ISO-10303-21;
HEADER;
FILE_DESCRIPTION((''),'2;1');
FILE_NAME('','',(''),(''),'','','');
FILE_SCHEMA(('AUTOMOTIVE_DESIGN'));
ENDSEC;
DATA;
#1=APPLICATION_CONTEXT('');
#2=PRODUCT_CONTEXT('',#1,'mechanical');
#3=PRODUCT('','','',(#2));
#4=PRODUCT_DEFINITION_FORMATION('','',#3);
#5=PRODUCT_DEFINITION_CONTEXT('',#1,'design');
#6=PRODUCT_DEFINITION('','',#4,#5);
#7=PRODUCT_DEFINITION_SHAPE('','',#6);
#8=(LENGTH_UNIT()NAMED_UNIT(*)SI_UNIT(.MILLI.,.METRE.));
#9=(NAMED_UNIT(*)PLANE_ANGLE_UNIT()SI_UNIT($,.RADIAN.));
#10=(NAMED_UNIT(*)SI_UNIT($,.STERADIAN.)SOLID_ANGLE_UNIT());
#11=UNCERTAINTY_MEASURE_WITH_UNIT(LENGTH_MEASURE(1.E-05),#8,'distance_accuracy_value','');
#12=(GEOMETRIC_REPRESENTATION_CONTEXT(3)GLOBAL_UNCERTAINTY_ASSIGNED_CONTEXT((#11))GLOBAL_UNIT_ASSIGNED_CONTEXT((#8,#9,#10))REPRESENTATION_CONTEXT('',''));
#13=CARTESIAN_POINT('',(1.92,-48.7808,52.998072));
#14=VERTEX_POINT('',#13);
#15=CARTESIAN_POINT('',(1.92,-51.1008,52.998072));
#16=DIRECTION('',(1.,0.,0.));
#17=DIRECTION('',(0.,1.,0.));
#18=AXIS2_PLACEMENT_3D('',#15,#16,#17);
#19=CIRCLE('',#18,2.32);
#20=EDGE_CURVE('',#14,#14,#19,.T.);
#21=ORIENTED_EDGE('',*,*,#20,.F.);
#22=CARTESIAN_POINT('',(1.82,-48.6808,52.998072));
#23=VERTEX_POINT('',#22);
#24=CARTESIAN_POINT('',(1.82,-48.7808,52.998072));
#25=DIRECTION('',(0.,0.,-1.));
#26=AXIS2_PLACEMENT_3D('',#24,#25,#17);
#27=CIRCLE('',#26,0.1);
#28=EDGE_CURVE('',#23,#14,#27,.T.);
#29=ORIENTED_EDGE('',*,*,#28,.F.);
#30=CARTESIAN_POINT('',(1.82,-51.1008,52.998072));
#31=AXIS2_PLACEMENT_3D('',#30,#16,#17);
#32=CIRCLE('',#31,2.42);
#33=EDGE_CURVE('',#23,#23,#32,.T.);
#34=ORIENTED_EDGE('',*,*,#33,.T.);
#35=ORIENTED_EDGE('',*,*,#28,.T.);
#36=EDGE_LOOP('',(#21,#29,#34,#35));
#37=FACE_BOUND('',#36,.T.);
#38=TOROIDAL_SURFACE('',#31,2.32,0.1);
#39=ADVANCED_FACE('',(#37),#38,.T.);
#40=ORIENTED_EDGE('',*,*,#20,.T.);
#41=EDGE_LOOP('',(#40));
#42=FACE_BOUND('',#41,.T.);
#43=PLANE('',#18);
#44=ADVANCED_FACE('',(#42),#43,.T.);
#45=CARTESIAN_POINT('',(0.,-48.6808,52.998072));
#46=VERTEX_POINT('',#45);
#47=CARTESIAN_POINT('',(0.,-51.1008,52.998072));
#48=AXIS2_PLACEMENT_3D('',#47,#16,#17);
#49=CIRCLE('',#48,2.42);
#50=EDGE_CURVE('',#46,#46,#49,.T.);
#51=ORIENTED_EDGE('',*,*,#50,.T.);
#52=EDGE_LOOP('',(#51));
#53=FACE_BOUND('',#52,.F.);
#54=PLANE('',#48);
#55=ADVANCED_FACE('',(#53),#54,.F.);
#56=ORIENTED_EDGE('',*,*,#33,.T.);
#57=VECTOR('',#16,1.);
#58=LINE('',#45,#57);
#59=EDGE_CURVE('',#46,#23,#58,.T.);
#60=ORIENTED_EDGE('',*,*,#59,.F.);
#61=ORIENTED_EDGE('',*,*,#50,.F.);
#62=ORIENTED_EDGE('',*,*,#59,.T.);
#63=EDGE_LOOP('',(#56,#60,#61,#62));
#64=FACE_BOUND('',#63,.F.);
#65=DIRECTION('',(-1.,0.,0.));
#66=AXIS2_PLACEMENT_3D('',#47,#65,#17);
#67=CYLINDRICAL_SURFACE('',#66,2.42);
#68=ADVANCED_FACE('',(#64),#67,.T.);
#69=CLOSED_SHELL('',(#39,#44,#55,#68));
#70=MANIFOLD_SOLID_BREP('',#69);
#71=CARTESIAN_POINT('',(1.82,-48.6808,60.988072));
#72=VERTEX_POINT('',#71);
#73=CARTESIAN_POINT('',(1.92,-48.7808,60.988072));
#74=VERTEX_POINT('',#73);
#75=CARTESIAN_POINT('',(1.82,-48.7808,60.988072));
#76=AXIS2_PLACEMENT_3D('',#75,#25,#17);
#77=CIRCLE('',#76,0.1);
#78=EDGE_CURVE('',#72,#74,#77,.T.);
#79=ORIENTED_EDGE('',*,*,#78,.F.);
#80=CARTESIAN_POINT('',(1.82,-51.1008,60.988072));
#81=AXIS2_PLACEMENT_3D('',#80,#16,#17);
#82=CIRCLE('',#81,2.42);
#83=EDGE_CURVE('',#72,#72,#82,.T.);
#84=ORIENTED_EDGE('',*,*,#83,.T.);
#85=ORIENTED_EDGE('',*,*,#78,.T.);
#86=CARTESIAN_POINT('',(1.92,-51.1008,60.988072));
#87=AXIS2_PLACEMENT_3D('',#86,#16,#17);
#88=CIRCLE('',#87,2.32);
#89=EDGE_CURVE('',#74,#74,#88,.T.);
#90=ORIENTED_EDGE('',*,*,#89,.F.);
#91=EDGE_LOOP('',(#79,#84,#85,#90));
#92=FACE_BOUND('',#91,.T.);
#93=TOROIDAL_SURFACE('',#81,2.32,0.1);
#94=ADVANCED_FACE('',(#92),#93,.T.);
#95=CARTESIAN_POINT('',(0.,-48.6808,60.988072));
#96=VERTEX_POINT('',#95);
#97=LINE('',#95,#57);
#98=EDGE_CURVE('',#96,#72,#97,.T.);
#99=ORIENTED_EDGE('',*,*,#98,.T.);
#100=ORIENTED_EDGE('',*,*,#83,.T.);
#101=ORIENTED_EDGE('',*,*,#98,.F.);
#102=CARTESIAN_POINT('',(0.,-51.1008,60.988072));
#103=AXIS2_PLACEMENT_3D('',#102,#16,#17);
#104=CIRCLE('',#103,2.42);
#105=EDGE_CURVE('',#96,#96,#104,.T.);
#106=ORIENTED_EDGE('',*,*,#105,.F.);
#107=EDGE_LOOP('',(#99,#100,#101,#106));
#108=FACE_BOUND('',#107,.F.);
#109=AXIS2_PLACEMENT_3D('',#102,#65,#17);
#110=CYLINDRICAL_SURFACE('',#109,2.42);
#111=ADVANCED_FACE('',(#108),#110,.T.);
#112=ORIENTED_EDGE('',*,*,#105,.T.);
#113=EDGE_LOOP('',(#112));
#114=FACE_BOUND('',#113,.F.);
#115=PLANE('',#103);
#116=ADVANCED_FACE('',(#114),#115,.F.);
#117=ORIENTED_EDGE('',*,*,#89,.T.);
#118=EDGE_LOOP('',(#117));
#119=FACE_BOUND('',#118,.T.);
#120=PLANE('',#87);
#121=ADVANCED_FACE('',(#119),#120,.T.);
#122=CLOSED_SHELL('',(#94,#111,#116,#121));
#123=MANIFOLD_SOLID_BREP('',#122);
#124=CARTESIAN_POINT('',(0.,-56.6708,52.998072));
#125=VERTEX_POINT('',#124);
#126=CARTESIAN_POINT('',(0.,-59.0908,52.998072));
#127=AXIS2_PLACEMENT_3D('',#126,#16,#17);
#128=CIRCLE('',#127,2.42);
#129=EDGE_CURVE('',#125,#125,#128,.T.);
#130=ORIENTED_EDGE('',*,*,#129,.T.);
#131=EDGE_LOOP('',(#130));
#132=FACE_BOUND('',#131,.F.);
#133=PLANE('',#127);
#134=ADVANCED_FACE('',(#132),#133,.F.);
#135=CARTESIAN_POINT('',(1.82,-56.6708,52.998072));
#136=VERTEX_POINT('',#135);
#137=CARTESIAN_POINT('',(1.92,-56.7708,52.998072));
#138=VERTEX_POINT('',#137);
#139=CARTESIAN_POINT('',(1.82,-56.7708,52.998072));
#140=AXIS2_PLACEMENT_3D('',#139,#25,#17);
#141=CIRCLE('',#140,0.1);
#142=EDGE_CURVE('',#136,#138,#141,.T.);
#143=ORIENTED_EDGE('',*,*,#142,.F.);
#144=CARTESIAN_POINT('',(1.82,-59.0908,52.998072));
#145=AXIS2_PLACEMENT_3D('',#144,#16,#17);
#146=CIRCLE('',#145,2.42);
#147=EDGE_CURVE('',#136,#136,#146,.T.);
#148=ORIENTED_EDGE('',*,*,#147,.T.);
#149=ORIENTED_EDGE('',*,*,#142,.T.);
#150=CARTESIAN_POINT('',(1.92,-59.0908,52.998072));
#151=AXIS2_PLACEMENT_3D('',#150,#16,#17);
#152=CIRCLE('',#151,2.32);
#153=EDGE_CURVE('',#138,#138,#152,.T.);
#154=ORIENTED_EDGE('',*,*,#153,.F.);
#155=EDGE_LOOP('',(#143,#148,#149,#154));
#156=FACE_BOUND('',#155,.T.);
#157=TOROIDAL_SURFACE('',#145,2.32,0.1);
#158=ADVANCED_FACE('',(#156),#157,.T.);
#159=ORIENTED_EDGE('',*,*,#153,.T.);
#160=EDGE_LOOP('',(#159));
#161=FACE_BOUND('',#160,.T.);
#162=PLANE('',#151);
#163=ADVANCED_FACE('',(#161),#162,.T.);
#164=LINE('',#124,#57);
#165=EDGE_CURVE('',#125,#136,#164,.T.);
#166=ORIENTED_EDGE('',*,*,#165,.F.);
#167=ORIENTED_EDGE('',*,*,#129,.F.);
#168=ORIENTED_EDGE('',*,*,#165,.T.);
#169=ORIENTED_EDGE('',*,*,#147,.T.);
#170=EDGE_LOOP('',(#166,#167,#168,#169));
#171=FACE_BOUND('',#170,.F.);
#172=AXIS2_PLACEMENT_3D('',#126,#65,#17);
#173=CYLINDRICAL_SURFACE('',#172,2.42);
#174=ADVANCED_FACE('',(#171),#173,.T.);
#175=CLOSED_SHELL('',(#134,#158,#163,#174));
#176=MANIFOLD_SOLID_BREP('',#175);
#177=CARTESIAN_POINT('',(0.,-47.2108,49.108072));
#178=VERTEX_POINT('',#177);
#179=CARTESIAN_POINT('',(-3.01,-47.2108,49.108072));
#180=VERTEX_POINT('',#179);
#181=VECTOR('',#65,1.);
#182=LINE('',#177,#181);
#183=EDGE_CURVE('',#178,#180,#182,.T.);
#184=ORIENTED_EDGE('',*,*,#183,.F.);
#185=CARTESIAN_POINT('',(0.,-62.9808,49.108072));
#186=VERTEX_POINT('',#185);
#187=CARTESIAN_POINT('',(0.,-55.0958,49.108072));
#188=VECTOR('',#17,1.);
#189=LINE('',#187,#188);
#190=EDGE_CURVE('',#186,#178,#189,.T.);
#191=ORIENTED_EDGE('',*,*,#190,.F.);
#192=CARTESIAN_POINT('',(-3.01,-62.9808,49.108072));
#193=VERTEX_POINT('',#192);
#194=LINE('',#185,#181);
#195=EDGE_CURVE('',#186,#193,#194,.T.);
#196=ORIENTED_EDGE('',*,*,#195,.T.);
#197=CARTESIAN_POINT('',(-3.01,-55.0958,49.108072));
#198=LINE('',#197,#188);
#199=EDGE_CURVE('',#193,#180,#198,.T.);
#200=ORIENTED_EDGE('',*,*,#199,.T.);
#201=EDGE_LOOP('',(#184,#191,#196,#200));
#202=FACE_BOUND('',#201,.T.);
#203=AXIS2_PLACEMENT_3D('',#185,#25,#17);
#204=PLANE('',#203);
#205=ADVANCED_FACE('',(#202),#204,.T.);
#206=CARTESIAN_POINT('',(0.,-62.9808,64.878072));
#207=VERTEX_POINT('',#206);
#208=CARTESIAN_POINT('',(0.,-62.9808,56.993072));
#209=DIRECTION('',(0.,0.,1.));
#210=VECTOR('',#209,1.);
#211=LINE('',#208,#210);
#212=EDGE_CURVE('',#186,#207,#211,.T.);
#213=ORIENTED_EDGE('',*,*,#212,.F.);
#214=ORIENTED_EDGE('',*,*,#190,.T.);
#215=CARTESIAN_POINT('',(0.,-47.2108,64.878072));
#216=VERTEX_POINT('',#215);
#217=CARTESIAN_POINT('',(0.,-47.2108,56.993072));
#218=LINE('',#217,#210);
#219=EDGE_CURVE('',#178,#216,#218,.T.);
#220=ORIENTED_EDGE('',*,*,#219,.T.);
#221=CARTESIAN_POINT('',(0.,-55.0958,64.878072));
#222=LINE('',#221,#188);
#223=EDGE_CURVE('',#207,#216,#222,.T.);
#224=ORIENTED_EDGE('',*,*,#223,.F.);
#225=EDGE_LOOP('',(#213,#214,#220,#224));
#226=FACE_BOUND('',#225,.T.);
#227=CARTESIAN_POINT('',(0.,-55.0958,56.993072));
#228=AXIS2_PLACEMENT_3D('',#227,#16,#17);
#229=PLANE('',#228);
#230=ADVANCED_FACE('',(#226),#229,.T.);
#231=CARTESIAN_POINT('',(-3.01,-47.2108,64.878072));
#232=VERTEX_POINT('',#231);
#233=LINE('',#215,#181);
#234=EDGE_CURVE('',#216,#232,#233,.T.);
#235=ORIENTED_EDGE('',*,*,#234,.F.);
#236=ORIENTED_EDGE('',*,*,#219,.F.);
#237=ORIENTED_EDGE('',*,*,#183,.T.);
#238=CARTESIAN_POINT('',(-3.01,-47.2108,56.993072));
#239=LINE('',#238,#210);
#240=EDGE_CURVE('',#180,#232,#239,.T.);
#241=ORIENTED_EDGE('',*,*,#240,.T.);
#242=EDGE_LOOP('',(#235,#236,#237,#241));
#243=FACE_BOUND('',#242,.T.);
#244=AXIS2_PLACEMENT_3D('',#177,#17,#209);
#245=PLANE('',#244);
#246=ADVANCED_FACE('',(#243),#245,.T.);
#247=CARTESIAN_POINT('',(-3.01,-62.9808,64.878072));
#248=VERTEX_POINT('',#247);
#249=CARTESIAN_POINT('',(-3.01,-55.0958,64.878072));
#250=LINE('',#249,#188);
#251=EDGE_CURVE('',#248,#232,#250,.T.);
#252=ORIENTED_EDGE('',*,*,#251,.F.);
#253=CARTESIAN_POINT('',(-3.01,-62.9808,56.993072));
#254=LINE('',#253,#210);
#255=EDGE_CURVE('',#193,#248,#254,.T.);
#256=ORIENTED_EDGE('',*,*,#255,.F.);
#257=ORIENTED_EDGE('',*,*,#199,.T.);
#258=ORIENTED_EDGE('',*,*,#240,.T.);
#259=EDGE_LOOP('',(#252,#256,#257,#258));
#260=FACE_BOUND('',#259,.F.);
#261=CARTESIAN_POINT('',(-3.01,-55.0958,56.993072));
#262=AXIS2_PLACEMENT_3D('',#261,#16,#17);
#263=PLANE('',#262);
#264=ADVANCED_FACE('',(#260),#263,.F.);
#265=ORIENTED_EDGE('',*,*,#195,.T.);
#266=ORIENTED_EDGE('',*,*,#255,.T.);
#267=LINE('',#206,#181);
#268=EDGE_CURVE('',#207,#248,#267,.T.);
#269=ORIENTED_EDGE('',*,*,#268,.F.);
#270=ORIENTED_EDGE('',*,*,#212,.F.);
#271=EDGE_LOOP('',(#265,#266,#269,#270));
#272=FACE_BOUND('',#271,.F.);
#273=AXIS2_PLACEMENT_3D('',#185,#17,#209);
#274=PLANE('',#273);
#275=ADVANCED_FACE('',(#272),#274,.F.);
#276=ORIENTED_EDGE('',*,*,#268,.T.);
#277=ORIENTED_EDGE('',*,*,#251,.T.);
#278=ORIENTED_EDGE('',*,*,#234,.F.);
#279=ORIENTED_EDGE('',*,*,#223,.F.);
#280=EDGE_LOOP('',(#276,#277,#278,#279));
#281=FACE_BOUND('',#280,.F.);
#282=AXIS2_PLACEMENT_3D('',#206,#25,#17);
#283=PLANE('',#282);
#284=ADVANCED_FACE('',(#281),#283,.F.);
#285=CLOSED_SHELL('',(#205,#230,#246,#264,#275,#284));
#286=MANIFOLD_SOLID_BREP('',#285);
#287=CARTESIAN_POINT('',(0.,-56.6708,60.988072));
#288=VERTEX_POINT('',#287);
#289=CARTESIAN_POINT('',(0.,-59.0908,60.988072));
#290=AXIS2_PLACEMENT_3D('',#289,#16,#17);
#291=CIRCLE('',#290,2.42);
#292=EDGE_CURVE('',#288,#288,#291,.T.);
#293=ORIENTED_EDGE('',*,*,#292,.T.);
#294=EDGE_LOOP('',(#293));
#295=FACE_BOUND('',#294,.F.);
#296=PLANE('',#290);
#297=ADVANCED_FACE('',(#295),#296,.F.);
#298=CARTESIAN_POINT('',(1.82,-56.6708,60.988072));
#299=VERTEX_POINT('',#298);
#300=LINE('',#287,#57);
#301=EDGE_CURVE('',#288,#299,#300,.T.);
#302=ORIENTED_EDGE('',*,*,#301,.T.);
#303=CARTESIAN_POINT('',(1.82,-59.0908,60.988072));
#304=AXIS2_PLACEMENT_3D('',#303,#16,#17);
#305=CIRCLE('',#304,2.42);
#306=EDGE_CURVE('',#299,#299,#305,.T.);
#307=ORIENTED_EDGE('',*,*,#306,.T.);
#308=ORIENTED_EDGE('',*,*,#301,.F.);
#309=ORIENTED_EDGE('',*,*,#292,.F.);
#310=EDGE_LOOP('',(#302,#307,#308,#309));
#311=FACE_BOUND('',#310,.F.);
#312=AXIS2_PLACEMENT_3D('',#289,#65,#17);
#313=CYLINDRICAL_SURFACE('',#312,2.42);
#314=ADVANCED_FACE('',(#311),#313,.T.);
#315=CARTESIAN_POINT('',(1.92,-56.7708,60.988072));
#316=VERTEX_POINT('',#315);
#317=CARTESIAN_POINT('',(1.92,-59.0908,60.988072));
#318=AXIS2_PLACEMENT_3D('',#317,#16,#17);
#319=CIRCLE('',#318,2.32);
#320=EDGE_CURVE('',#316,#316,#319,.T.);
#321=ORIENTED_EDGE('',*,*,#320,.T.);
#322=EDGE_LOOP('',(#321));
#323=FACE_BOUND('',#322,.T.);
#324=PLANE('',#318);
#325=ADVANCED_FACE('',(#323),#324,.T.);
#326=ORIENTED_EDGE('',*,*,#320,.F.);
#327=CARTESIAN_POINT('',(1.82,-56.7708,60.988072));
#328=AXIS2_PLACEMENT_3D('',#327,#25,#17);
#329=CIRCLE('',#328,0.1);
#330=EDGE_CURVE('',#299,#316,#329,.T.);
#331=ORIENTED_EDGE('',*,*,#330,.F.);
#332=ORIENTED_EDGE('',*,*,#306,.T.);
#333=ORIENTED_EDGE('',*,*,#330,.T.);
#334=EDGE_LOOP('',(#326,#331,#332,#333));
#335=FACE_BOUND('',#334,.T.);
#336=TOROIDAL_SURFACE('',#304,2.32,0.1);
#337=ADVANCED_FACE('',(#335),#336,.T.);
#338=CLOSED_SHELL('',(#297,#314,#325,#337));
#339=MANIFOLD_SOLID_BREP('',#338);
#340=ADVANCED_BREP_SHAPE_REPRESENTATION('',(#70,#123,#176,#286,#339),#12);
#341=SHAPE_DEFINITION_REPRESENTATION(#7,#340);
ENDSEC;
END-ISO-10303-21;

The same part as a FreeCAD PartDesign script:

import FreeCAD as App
import Part
import Sketcher

V = App.Vector


def edges_at(feature, points):
    """Names of the edges that pass closest to the given points."""
    edges = feature.Shape.Edges
    near = lambda p: min(range(len(edges)), key=lambda i: edges[i].distToShape(Part.Vertex(*p))[0])
    return sorted({f"Edge{near(p) + 1}" for p in points})


def add_polygon(sketch, points):
    """Adds a closed chain of lines whose ends are joined by coincident constraints."""
    first, n = sketch.GeometryCount, len(points)
    for a, b in zip(points, points[1:] + points[:1]):
        sketch.addGeometry(Part.LineSegment(App.Vector(*a, 0), App.Vector(*b, 0)), False)
    for i in range(n):
        sketch.addConstraint(Sketcher.Constraint("Coincident", first + i, 2, first + (i + 1) % n, 1))

doc = App.newDocument("Part")
body = doc.addObject("PartDesign::Body", "Body")

# Sketch on YZ plane
sketch1 = doc.addObject("Sketcher::SketchObject", "Sketch")
body.addObject(sketch1)
sketch1.AttachmentSupport = (doc.YZ_Plane, [""])
sketch1.MapMode = "FlatFace"
sketch1.addGeometry(Part.Circle(V(-59.1, 61, 0), V(0, 0, 1), 2.4), False)
sketch1.addConstraint(Sketcher.Constraint("Diameter", 0, 4.84))
sketch1.addConstraint(Sketcher.Constraint("DistanceX", 0, 3, -1, 1, 59.0908))
sketch1.addConstraint(Sketcher.Constraint("DistanceY", -1, 1, 0, 3, 60.988072))
pad1 = doc.addObject("PartDesign::Pad", "Pad")
body.addObject(pad1)
pad1.Profile = sketch1
pad1.Length = 1.92
doc.recompute()

fillet = doc.addObject("PartDesign::Fillet", "Fillet")
body.addObject(fillet)
fillet.Base = (pad1, edges_at(pad1, [(1.92, -61.511, 60.988)]))
fillet.Radius = 0.1
body2 = doc.addObject("PartDesign::Body", "Body001")

# Sketch on YZ plane
sketch2 = doc.addObject("Sketcher::SketchObject", "Sketch001")
body2.addObject(sketch2)
sketch2.AttachmentSupport = (doc.getObject("YZ_Plane001"), [""])
sketch2.MapMode = "FlatFace"
sketch2.addGeometry(Part.Circle(V(-51.1, 61, 0), V(0, 0, 1), 2.4), False)
sketch2.addConstraint(Sketcher.Constraint("Diameter", 0, 4.84))
sketch2.addConstraint(Sketcher.Constraint("DistanceX", 0, 3, -1, 1, 51.1008))
sketch2.addConstraint(Sketcher.Constraint("DistanceY", -1, 1, 0, 3, 60.988072))
pad2 = doc.addObject("PartDesign::Pad", "Pad001")
body2.addObject(pad2)
pad2.Profile = sketch2
pad2.Length = 1.92
doc.recompute()

fillet2 = doc.addObject("PartDesign::Fillet", "Fillet001")
body2.addObject(fillet2)
fillet2.Base = (pad2, edges_at(pad2, [(1.92, -53.521, 60.988)]))
fillet2.Radius = 0.1
body3 = doc.addObject("PartDesign::Body", "Body002")

# Sketch on YZ plane
sketch3 = doc.addObject("Sketcher::SketchObject", "Sketch002")
body3.addObject(sketch3)
sketch3.AttachmentSupport = (doc.getObject("YZ_Plane002"), [""])
sketch3.MapMode = "FlatFace"
sketch3.addGeometry(Part.Circle(V(-59.1, 53, 0), V(0, 0, 1), 2.4), False)
sketch3.addConstraint(Sketcher.Constraint("Diameter", 0, 4.84))
sketch3.addConstraint(Sketcher.Constraint("DistanceX", 0, 3, -1, 1, 59.0908))
sketch3.addConstraint(Sketcher.Constraint("DistanceY", -1, 1, 0, 3, 52.998072))
pad3 = doc.addObject("PartDesign::Pad", "Pad002")
body3.addObject(pad3)
pad3.Profile = sketch3
pad3.Length = 1.92
doc.recompute()

fillet3 = doc.addObject("PartDesign::Fillet", "Fillet002")
body3.addObject(fillet3)
fillet3.Base = (pad3, edges_at(pad3, [(1.92, -61.511, 52.998)]))
fillet3.Radius = 0.1
body4 = doc.addObject("PartDesign::Body", "Body003")

# Sketch on YZ plane
sketch4 = doc.addObject("Sketcher::SketchObject", "Sketch003")
body4.addObject(sketch4)
sketch4.AttachmentSupport = (doc.getObject("YZ_Plane003"), [""])
sketch4.MapMode = "FlatFace"
sketch4.addGeometry(Part.Circle(V(-51.1, 53, 0), V(0, 0, 1), 2.4), False)
sketch4.addConstraint(Sketcher.Constraint("Diameter", 0, 4.84))
sketch4.addConstraint(Sketcher.Constraint("DistanceX", 0, 3, -1, 1, 51.1008))
sketch4.addConstraint(Sketcher.Constraint("DistanceY", -1, 1, 0, 3, 52.998072))
pad4 = doc.addObject("PartDesign::Pad", "Pad003")
body4.addObject(pad4)
pad4.Profile = sketch4
pad4.Length = 1.92
doc.recompute()

fillet4 = doc.addObject("PartDesign::Fillet", "Fillet003")
body4.addObject(fillet4)
fillet4.Base = (pad4, edges_at(pad4, [(1.92, -53.521, 52.998)]))
fillet4.Radius = 0.1
body5 = doc.addObject("PartDesign::Body", "Body004")

# Sketch on YZ plane
sketch5 = doc.addObject("Sketcher::SketchObject", "Sketch004")
body5.addObject(sketch5)
sketch5.AttachmentSupport = (doc.getObject("YZ_Plane004"), [""])
sketch5.MapMode = "FlatFace"
add_polygon(sketch5, [(-63, 65), (-63, 49), (-47, 49), (-47, 65)])  # lines 0-3
sketch5.addConstraint(Sketcher.Constraint("Vertical", 0))
sketch5.addConstraint(Sketcher.Constraint("Horizontal", 1))
sketch5.addConstraint(Sketcher.Constraint("Vertical", 2))
sketch5.addConstraint(Sketcher.Constraint("Horizontal", 3))
sketch5.addConstraint(Sketcher.Constraint("Equal", 3, 0))
sketch5.addConstraint(Sketcher.Constraint("DistanceX", 1, 1, 1, 2, 15.77))
sketch5.addConstraint(Sketcher.Constraint("DistanceX", 0, 2, -1, 1, 62.9808))
sketch5.addConstraint(Sketcher.Constraint("DistanceY", -1, 1, 0, 2, 49.108072))
pad5 = doc.addObject("PartDesign::Pad", "Pad004")
body5.addObject(pad5)
pad5.Profile = sketch5
pad5.Length = 3.01
pad5.Reversed = True

doc.recompute()
